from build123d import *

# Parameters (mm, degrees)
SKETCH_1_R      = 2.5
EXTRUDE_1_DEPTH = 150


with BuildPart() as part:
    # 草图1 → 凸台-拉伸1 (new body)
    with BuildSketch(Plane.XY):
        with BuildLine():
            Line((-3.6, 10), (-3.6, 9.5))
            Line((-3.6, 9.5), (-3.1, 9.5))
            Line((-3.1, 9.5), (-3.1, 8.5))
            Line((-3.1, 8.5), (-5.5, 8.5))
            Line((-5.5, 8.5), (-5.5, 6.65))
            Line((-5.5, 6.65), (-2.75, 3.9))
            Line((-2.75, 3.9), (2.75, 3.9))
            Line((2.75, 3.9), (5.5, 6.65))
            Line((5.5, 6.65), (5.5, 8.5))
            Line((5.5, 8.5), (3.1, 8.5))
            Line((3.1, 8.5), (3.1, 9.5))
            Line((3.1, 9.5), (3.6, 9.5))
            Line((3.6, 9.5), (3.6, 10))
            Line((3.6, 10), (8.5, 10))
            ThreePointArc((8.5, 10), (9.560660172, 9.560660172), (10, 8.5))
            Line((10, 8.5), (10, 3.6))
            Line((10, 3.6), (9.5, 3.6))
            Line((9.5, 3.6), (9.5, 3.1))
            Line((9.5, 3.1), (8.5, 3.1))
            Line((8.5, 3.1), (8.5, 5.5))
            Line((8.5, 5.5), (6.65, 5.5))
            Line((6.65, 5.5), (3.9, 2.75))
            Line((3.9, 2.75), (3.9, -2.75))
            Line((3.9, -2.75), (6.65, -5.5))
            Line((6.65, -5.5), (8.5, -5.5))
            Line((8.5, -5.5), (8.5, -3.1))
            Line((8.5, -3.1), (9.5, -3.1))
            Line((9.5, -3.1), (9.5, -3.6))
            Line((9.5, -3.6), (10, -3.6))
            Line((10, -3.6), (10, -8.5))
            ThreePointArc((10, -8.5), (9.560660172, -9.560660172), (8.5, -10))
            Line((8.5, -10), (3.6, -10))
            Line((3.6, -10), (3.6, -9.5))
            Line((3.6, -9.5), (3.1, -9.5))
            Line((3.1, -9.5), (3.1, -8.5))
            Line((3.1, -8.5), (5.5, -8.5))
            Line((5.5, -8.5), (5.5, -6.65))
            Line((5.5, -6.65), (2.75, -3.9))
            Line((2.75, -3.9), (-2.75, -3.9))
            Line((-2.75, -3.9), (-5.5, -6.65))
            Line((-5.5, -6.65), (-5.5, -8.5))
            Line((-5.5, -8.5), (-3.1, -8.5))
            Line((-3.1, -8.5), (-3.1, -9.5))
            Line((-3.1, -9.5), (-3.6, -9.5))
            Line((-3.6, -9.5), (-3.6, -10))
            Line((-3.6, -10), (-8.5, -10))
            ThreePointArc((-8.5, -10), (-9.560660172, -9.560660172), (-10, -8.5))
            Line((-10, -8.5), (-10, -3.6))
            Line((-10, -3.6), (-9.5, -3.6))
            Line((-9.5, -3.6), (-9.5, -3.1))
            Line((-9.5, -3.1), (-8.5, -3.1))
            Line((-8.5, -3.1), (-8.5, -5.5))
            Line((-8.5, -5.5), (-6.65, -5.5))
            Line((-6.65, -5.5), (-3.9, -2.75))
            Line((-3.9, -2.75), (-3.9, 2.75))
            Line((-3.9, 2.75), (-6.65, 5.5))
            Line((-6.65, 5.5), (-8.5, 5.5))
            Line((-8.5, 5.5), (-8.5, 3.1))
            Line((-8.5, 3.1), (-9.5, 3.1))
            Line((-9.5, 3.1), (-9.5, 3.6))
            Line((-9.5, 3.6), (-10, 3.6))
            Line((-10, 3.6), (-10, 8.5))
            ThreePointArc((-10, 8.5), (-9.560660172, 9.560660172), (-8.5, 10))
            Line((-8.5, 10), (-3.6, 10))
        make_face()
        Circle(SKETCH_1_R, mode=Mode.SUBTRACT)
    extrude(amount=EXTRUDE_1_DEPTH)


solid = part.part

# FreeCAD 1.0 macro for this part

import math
import FreeCAD as App
import Part
import Sketcher

doc = App.newDocument("Part")
body = doc.addObject("PartDesign::Body", "Body")

# Sketch on XY plane
sketch1 = body.newObject("Sketcher::SketchObject", "Sketch")
sketch1.AttachmentSupport = (doc.getObject("XY_Plane"), [""])
sketch1.MapMode = "FlatFace"
sketch1.addGeometry([
    Part.LineSegment(App.Vector(-3.6, 9.5, 0), App.Vector(-3.6, 10, 0)),  # 0
    Part.LineSegment(App.Vector(-3.6, 10, 0), App.Vector(-8.5, 10, 0)),  # 1
    Part.ArcOfCircle(Part.Circle(App.Vector(-8.5, 8.5, 0), App.Vector(0, 0, 1), 1.5), math.radians(90), math.radians(180)),  # 2
    Part.LineSegment(App.Vector(-10, 8.5, 0), App.Vector(-10, 3.6, 0)),  # 3
    Part.LineSegment(App.Vector(-10, 3.6, 0), App.Vector(-9.5, 3.6, 0)),  # 4
    Part.LineSegment(App.Vector(-9.5, 3.6, 0), App.Vector(-9.5, 3.1, 0)),  # 5
    Part.LineSegment(App.Vector(-9.5, 3.1, 0), App.Vector(-8.5, 3.1, 0)),  # 6
    Part.LineSegment(App.Vector(-8.5, 3.1, 0), App.Vector(-8.5, 5.5, 0)),  # 7
    Part.LineSegment(App.Vector(-8.5, 5.5, 0), App.Vector(-6.7, 5.5, 0)),  # 8
    Part.LineSegment(App.Vector(-6.7, 5.5, 0), App.Vector(-3.9, 2.8, 0)),  # 9
    Part.LineSegment(App.Vector(-3.9, 2.8, 0), App.Vector(-3.9, -2.8, 0)),  # 10
    Part.LineSegment(App.Vector(-3.9, -2.8, 0), App.Vector(-6.7, -5.5, 0)),  # 11
    Part.LineSegment(App.Vector(-6.7, -5.5, 0), App.Vector(-8.5, -5.5, 0)),  # 12
    Part.LineSegment(App.Vector(-8.5, -5.5, 0), App.Vector(-8.5, -3.1, 0)),  # 13
    Part.LineSegment(App.Vector(-8.5, -3.1, 0), App.Vector(-9.5, -3.1, 0)),  # 14
    Part.LineSegment(App.Vector(-9.5, -3.1, 0), App.Vector(-9.5, -3.6, 0)),  # 15
    Part.LineSegment(App.Vector(-9.5, -3.6, 0), App.Vector(-10, -3.6, 0)),  # 16
    Part.LineSegment(App.Vector(-10, -3.6, 0), App.Vector(-10, -8.5, 0)),  # 17
    Part.ArcOfCircle(Part.Circle(App.Vector(-8.5, -8.5, 0), App.Vector(0, 0, 1), 1.5), math.radians(180), math.radians(270)),  # 18
    Part.LineSegment(App.Vector(-8.5, -10, 0), App.Vector(-3.6, -10, 0)),  # 19
    Part.LineSegment(App.Vector(-3.6, -10, 0), App.Vector(-3.6, -9.5, 0)),  # 20
    Part.LineSegment(App.Vector(-3.6, -9.5, 0), App.Vector(-3.1, -9.5, 0)),  # 21
    Part.LineSegment(App.Vector(-3.1, -9.5, 0), App.Vector(-3.1, -8.5, 0)),  # 22
    Part.LineSegment(App.Vector(-3.1, -8.5, 0), App.Vector(-5.5, -8.5, 0)),  # 23
    Part.LineSegment(App.Vector(-5.5, -8.5, 0), App.Vector(-5.5, -6.7, 0)),  # 24
    Part.LineSegment(App.Vector(-5.5, -6.7, 0), App.Vector(-2.8, -3.9, 0)),  # 25
    Part.LineSegment(App.Vector(-2.8, -3.9, 0), App.Vector(2.8, -3.9, 0)),  # 26
    Part.LineSegment(App.Vector(2.8, -3.9, 0), App.Vector(5.5, -6.7, 0)),  # 27
    Part.LineSegment(App.Vector(5.5, -6.7, 0), App.Vector(5.5, -8.5, 0)),  # 28
    Part.LineSegment(App.Vector(5.5, -8.5, 0), App.Vector(3.1, -8.5, 0)),  # 29
    Part.LineSegment(App.Vector(3.1, -8.5, 0), App.Vector(3.1, -9.5, 0)),  # 30
    Part.LineSegment(App.Vector(3.1, -9.5, 0), App.Vector(3.6, -9.5, 0)),  # 31
    Part.LineSegment(App.Vector(3.6, -9.5, 0), App.Vector(3.6, -10, 0)),  # 32
    Part.LineSegment(App.Vector(3.6, -10, 0), App.Vector(8.5, -10, 0)),  # 33
    Part.ArcOfCircle(Part.Circle(App.Vector(8.5, -8.5, 0), App.Vector(0, 0, 1), 1.5), math.radians(-90), math.radians(0)),  # 34
    Part.LineSegment(App.Vector(10, -8.5, 0), App.Vector(10, -3.6, 0)),  # 35
    Part.LineSegment(App.Vector(10, -3.6, 0), App.Vector(9.5, -3.6, 0)),  # 36
    Part.LineSegment(App.Vector(9.5, -3.6, 0), App.Vector(9.5, -3.1, 0)),  # 37
    Part.LineSegment(App.Vector(9.5, -3.1, 0), App.Vector(8.5, -3.1, 0)),  # 38
    Part.LineSegment(App.Vector(8.5, -3.1, 0), App.Vector(8.5, -5.5, 0)),  # 39
    Part.LineSegment(App.Vector(8.5, -5.5, 0), App.Vector(6.7, -5.5, 0)),  # 40
    Part.LineSegment(App.Vector(6.7, -5.5, 0), App.Vector(3.9, -2.8, 0)),  # 41
    Part.LineSegment(App.Vector(3.9, -2.8, 0), App.Vector(3.9, 2.8, 0)),  # 42
    Part.LineSegment(App.Vector(3.9, 2.8, 0), App.Vector(6.7, 5.5, 0)),  # 43
    Part.LineSegment(App.Vector(6.7, 5.5, 0), App.Vector(8.5, 5.5, 0)),  # 44
    Part.LineSegment(App.Vector(8.5, 5.5, 0), App.Vector(8.5, 3.1, 0)),  # 45
    Part.LineSegment(App.Vector(8.5, 3.1, 0), App.Vector(9.5, 3.1, 0)),  # 46
    Part.LineSegment(App.Vector(9.5, 3.1, 0), App.Vector(9.5, 3.6, 0)),  # 47
    Part.LineSegment(App.Vector(9.5, 3.6, 0), App.Vector(10, 3.6, 0)),  # 48
    Part.LineSegment(App.Vector(10, 3.6, 0), App.Vector(10, 8.5, 0)),  # 49
    Part.ArcOfCircle(Part.Circle(App.Vector(8.5, 8.5, 0), App.Vector(0, 0, 1), 1.5), math.radians(0), math.radians(90)),  # 50
    Part.LineSegment(App.Vector(8.5, 10, 0), App.Vector(3.6, 10, 0)),  # 51
    Part.LineSegment(App.Vector(3.6, 10, 0), App.Vector(3.6, 9.5, 0)),  # 52
    Part.LineSegment(App.Vector(3.6, 9.5, 0), App.Vector(3.1, 9.5, 0)),  # 53
    Part.LineSegment(App.Vector(3.1, 9.5, 0), App.Vector(3.1, 8.5, 0)),  # 54
    Part.LineSegment(App.Vector(3.1, 8.5, 0), App.Vector(5.5, 8.5, 0)),  # 55
    Part.LineSegment(App.Vector(5.5, 8.5, 0), App.Vector(5.5, 6.7, 0)),  # 56
    Part.LineSegment(App.Vector(5.5, 6.7, 0), App.Vector(2.8, 3.9, 0)),  # 57
    Part.LineSegment(App.Vector(2.8, 3.9, 0), App.Vector(-2.8, 3.9, 0)),  # 58
    Part.LineSegment(App.Vector(-2.8, 3.9, 0), App.Vector(-5.5, 6.7, 0)),  # 59
    Part.LineSegment(App.Vector(-5.5, 6.7, 0), App.Vector(-5.5, 8.5, 0)),  # 60
    Part.LineSegment(App.Vector(-5.5, 8.5, 0), App.Vector(-3.1, 8.5, 0)),  # 61
    Part.LineSegment(App.Vector(-3.1, 8.5, 0), App.Vector(-3.1, 9.5, 0)),  # 62
    Part.LineSegment(App.Vector(-3.1, 9.5, 0), App.Vector(-3.6, 9.5, 0)),  # 63
    Part.Circle(App.Vector(0, 0, 0), App.Vector(0, 0, 1), 2.5),  # 64
], False)
sketch1.addConstraint([
    Sketcher.Constraint("Coincident", 0, 2, 1, 1),
    Sketcher.Constraint("Tangent", 1, 2, 2, 1),
    Sketcher.Constraint("Tangent", 2, 2, 3, 1),
    Sketcher.Constraint("Coincident", 3, 2, 4, 1),
    Sketcher.Constraint("Coincident", 4, 2, 5, 1),
    Sketcher.Constraint("Coincident", 5, 2, 6, 1),
    Sketcher.Constraint("Coincident", 6, 2, 7, 1),
    Sketcher.Constraint("Coincident", 7, 2, 8, 1),
    Sketcher.Constraint("Coincident", 8, 2, 9, 1),
    Sketcher.Constraint("Coincident", 9, 2, 10, 1),
    Sketcher.Constraint("Coincident", 10, 2, 11, 1),
    Sketcher.Constraint("Coincident", 11, 2, 12, 1),
    Sketcher.Constraint("Coincident", 12, 2, 13, 1),
    Sketcher.Constraint("Coincident", 13, 2, 14, 1),
    Sketcher.Constraint("Coincident", 14, 2, 15, 1),
    Sketcher.Constraint("Coincident", 15, 2, 16, 1),
    Sketcher.Constraint("Coincident", 16, 2, 17, 1),
    Sketcher.Constraint("Tangent", 17, 2, 18, 1),
    Sketcher.Constraint("Tangent", 18, 2, 19, 1),
    Sketcher.Constraint("Coincident", 19, 2, 20, 1),
    Sketcher.Constraint("Coincident", 20, 2, 21, 1),
    Sketcher.Constraint("Coincident", 21, 2, 22, 1),
    Sketcher.Constraint("Coincident", 22, 2, 23, 1),
    Sketcher.Constraint("Coincident", 23, 2, 24, 1),
    Sketcher.Constraint("Coincident", 24, 2, 25, 1),
    Sketcher.Constraint("Coincident", 25, 2, 26, 1),
    Sketcher.Constraint("Coincident", 26, 2, 27, 1),
    Sketcher.Constraint("Coincident", 27, 2, 28, 1),
    Sketcher.Constraint("Coincident", 28, 2, 29, 1),
    Sketcher.Constraint("Coincident", 29, 2, 30, 1),
    Sketcher.Constraint("Coincident", 30, 2, 31, 1),
    Sketcher.Constraint("Coincident", 31, 2, 32, 1),
    Sketcher.Constraint("Coincident", 32, 2, 33, 1),
    Sketcher.Constraint("Tangent", 33, 2, 34, 1),
    Sketcher.Constraint("Tangent", 34, 2, 35, 1),
    Sketcher.Constraint("Coincident", 35, 2, 36, 1),
    Sketcher.Constraint("Coincident", 36, 2, 37, 1),
    Sketcher.Constraint("Coincident", 37, 2, 38, 1),
    Sketcher.Constraint("Coincident", 38, 2, 39, 1),
    Sketcher.Constraint("Coincident", 39, 2, 40, 1),
    Sketcher.Constraint("Coincident", 40, 2, 41, 1),
    Sketcher.Constraint("Coincident", 41, 2, 42, 1),
    Sketcher.Constraint("Coincident", 42, 2, 43, 1),
    Sketcher.Constraint("Coincident", 43, 2, 44, 1),
    Sketcher.Constraint("Coincident", 44, 2, 45, 1),
    Sketcher.Constraint("Coincident", 45, 2, 46, 1),
    Sketcher.Constraint("Coincident", 46, 2, 47, 1),
    Sketcher.Constraint("Coincident", 47, 2, 48, 1),
    Sketcher.Constraint("Coincident", 48, 2, 49, 1),
    Sketcher.Constraint("Tangent", 49, 2, 50, 1),
    Sketcher.Constraint("Tangent", 50, 2, 51, 1),
    Sketcher.Constraint("Coincident", 51, 2, 52, 1),
    Sketcher.Constraint("Coincident", 52, 2, 53, 1),
    Sketcher.Constraint("Coincident", 53, 2, 54, 1),
    Sketcher.Constraint("Coincident", 54, 2, 55, 1),
    Sketcher.Constraint("Coincident", 55, 2, 56, 1),
    Sketcher.Constraint("Coincident", 56, 2, 57, 1),
    Sketcher.Constraint("Coincident", 57, 2, 58, 1),
    Sketcher.Constraint("Coincident", 58, 2, 59, 1),
    Sketcher.Constraint("Coincident", 59, 2, 60, 1),
    Sketcher.Constraint("Coincident", 60, 2, 61, 1),
    Sketcher.Constraint("Coincident", 61, 2, 62, 1),
    Sketcher.Constraint("Coincident", 62, 2, 63, 1),
    Sketcher.Constraint("Coincident", 63, 2, 0, 1),
    Sketcher.Constraint("Vertical", 0),
    Sketcher.Constraint("Horizontal", 1),
    Sketcher.Constraint("Vertical", 3),
    Sketcher.Constraint("Horizontal", 4),
    Sketcher.Constraint("Vertical", 5),
    Sketcher.Constraint("Horizontal", 6),
    Sketcher.Constraint("Vertical", 7),
    Sketcher.Constraint("Horizontal", 8),
    Sketcher.Constraint("Vertical", 10),
    Sketcher.Constraint("Horizontal", 12),
    Sketcher.Constraint("Vertical", 13),
    Sketcher.Constraint("Horizontal", 14),
    Sketcher.Constraint("Vertical", 15),
    Sketcher.Constraint("Horizontal", 16),
    Sketcher.Constraint("Vertical", 17),
    Sketcher.Constraint("Horizontal", 19),
    Sketcher.Constraint("Vertical", 20),
    Sketcher.Constraint("Horizontal", 21),
    Sketcher.Constraint("Vertical", 22),
    Sketcher.Constraint("Horizontal", 23),
    Sketcher.Constraint("Vertical", 24),
    Sketcher.Constraint("Horizontal", 26),
    Sketcher.Constraint("Vertical", 28),
    Sketcher.Constraint("Horizontal", 29),
    Sketcher.Constraint("Vertical", 30),
    Sketcher.Constraint("Horizontal", 31),
    Sketcher.Constraint("Vertical", 32),
    Sketcher.Constraint("Horizontal", 33),
    Sketcher.Constraint("Vertical", 35),
    Sketcher.Constraint("Horizontal", 36),
    Sketcher.Constraint("Vertical", 37),
    Sketcher.Constraint("Horizontal", 38),
    Sketcher.Constraint("Vertical", 39),
    Sketcher.Constraint("Horizontal", 40),
    Sketcher.Constraint("Vertical", 42),
    Sketcher.Constraint("Horizontal", 44),
    Sketcher.Constraint("Vertical", 45),
    Sketcher.Constraint("Horizontal", 46),
    Sketcher.Constraint("Vertical", 47),
    Sketcher.Constraint("Horizontal", 48),
    Sketcher.Constraint("Vertical", 49),
    Sketcher.Constraint("Horizontal", 51),
    Sketcher.Constraint("Vertical", 52),
    Sketcher.Constraint("Horizontal", 53),
    Sketcher.Constraint("Vertical", 54),
    Sketcher.Constraint("Horizontal", 55),
    Sketcher.Constraint("Vertical", 56),
    Sketcher.Constraint("Horizontal", 58),
    Sketcher.Constraint("Vertical", 60),
    Sketcher.Constraint("Horizontal", 61),
    Sketcher.Constraint("Vertical", 62),
    Sketcher.Constraint("Horizontal", 63),
    Sketcher.Constraint("Coincident", 64, 3, -1, 1),
    Sketcher.Constraint("Equal", 2, 18),
    Sketcher.Constraint("Equal", 18, 34),
    Sketcher.Constraint("Equal", 34, 50),
    Sketcher.Constraint("Symmetric", 2, 3, 34, 3, -1, 1),
    Sketcher.Constraint("Symmetric", 18, 3, 50, 3, -1, 1),
    Sketcher.Constraint("Symmetric", 4, 2, 36, 2, -1, 1),
    Sketcher.Constraint("Symmetric", 6, 2, 38, 2, -1, 1),
    Sketcher.Constraint("Symmetric", 8, 2, 40, 2, -1, 1),
    Sketcher.Constraint("Symmetric", 9, 2, 41, 2, -1, 1),
    Sketcher.Constraint("Symmetric", 11, 2, 43, 2, -1, 1),
    Sketcher.Constraint("Symmetric", 13, 2, 45, 2, -1, 1),
    Sketcher.Constraint("Symmetric", 15, 2, 47, 2, -1, 1),
    Sketcher.Constraint("Symmetric", 20, 2, 52, 2, -1, 1),
    Sketcher.Constraint("Symmetric", 22, 2, 54, 2, -1, 1),
    Sketcher.Constraint("Symmetric", 24, 2, 56, 2, -1, 1),
    Sketcher.Constraint("Symmetric", 25, 2, 57, 2, -1, 1),
    Sketcher.Constraint("Symmetric", 27, 2, 59, 2, -1, 1),
    Sketcher.Constraint("Symmetric", 29, 2, 61, 2, -1, 1),
    Sketcher.Constraint("Symmetric", 31, 2, 63, 2, -1, 1),
    Sketcher.Constraint("Symmetric", 18, 3, 34, 3, -2),
    Sketcher.Constraint("Symmetric", 24, 2, 27, 2, -2),
    Sketcher.Constraint("Symmetric", 22, 2, 29, 2, -2),
    Sketcher.Constraint("Symmetric", 20, 2, 31, 2, -2),
    Sketcher.Constraint("Symmetric", 15, 2, 36, 2, -2),
    Sketcher.Constraint("Symmetric", 13, 2, 38, 2, -2),
    Sketcher.Constraint("Symmetric", 11, 2, 40, 2, -2),
    Sketcher.Constraint("Perpendicular", 9, 11),
    Sketcher.Constraint("Parallel", 11, 25),
    Sketcher.Constraint("Perpendicular", 25, 27),
    Sketcher.Constraint("Perpendicular", 41, 43),
    Sketcher.Constraint("Perpendicular", 57, 59),
    Sketcher.Constraint("Horizontal", 17, 2, 22, 2),
    Sketcher.Constraint("Horizontal", 10, 2, 41, 2),
    Sketcher.Constraint("Vertical", 1, 2, 6, 2),
    Sketcher.Constraint("Equal", 16, 21),
    Sketcher.Constraint("Equal", 63, 0),
    Sketcher.Constraint("Equal", 51, 3),
    Sketcher.Constraint("Equal", 0, 5),
    Sketcher.Constraint("Equal", 61, 7),
    Sketcher.Constraint("Equal", 58, 10),
    Sketcher.Constraint("Equal", 44, 24),
    Sketcher.Constraint("Equal", 11, 25),
    Sketcher.Constraint("Diameter", 64, 5.0),
    Sketcher.Constraint("Radius", 2, 1.5),
    Sketcher.Constraint("DistanceX", 6, 1, 6, 2, 1.0),
    Sketcher.Constraint("DistanceX", 1, 2, 1, 1, 4.9),
    Sketcher.Constraint("DistanceX", 23, 2, 23, 1, 2.4),
    Sketcher.Constraint("DistanceX", 26, 1, 26, 2, 5.5),
    Sketcher.Constraint("DistanceY", -1, 1, 0, 2, 10.0),
    Sketcher.Constraint("DistanceX", 8, 1, 8, 2, 1.85),
])
pad1 = body.newObject("PartDesign::Pad", "Pad")
pad1.Profile = sketch1
pad1.Length = 150

doc.recompute()
